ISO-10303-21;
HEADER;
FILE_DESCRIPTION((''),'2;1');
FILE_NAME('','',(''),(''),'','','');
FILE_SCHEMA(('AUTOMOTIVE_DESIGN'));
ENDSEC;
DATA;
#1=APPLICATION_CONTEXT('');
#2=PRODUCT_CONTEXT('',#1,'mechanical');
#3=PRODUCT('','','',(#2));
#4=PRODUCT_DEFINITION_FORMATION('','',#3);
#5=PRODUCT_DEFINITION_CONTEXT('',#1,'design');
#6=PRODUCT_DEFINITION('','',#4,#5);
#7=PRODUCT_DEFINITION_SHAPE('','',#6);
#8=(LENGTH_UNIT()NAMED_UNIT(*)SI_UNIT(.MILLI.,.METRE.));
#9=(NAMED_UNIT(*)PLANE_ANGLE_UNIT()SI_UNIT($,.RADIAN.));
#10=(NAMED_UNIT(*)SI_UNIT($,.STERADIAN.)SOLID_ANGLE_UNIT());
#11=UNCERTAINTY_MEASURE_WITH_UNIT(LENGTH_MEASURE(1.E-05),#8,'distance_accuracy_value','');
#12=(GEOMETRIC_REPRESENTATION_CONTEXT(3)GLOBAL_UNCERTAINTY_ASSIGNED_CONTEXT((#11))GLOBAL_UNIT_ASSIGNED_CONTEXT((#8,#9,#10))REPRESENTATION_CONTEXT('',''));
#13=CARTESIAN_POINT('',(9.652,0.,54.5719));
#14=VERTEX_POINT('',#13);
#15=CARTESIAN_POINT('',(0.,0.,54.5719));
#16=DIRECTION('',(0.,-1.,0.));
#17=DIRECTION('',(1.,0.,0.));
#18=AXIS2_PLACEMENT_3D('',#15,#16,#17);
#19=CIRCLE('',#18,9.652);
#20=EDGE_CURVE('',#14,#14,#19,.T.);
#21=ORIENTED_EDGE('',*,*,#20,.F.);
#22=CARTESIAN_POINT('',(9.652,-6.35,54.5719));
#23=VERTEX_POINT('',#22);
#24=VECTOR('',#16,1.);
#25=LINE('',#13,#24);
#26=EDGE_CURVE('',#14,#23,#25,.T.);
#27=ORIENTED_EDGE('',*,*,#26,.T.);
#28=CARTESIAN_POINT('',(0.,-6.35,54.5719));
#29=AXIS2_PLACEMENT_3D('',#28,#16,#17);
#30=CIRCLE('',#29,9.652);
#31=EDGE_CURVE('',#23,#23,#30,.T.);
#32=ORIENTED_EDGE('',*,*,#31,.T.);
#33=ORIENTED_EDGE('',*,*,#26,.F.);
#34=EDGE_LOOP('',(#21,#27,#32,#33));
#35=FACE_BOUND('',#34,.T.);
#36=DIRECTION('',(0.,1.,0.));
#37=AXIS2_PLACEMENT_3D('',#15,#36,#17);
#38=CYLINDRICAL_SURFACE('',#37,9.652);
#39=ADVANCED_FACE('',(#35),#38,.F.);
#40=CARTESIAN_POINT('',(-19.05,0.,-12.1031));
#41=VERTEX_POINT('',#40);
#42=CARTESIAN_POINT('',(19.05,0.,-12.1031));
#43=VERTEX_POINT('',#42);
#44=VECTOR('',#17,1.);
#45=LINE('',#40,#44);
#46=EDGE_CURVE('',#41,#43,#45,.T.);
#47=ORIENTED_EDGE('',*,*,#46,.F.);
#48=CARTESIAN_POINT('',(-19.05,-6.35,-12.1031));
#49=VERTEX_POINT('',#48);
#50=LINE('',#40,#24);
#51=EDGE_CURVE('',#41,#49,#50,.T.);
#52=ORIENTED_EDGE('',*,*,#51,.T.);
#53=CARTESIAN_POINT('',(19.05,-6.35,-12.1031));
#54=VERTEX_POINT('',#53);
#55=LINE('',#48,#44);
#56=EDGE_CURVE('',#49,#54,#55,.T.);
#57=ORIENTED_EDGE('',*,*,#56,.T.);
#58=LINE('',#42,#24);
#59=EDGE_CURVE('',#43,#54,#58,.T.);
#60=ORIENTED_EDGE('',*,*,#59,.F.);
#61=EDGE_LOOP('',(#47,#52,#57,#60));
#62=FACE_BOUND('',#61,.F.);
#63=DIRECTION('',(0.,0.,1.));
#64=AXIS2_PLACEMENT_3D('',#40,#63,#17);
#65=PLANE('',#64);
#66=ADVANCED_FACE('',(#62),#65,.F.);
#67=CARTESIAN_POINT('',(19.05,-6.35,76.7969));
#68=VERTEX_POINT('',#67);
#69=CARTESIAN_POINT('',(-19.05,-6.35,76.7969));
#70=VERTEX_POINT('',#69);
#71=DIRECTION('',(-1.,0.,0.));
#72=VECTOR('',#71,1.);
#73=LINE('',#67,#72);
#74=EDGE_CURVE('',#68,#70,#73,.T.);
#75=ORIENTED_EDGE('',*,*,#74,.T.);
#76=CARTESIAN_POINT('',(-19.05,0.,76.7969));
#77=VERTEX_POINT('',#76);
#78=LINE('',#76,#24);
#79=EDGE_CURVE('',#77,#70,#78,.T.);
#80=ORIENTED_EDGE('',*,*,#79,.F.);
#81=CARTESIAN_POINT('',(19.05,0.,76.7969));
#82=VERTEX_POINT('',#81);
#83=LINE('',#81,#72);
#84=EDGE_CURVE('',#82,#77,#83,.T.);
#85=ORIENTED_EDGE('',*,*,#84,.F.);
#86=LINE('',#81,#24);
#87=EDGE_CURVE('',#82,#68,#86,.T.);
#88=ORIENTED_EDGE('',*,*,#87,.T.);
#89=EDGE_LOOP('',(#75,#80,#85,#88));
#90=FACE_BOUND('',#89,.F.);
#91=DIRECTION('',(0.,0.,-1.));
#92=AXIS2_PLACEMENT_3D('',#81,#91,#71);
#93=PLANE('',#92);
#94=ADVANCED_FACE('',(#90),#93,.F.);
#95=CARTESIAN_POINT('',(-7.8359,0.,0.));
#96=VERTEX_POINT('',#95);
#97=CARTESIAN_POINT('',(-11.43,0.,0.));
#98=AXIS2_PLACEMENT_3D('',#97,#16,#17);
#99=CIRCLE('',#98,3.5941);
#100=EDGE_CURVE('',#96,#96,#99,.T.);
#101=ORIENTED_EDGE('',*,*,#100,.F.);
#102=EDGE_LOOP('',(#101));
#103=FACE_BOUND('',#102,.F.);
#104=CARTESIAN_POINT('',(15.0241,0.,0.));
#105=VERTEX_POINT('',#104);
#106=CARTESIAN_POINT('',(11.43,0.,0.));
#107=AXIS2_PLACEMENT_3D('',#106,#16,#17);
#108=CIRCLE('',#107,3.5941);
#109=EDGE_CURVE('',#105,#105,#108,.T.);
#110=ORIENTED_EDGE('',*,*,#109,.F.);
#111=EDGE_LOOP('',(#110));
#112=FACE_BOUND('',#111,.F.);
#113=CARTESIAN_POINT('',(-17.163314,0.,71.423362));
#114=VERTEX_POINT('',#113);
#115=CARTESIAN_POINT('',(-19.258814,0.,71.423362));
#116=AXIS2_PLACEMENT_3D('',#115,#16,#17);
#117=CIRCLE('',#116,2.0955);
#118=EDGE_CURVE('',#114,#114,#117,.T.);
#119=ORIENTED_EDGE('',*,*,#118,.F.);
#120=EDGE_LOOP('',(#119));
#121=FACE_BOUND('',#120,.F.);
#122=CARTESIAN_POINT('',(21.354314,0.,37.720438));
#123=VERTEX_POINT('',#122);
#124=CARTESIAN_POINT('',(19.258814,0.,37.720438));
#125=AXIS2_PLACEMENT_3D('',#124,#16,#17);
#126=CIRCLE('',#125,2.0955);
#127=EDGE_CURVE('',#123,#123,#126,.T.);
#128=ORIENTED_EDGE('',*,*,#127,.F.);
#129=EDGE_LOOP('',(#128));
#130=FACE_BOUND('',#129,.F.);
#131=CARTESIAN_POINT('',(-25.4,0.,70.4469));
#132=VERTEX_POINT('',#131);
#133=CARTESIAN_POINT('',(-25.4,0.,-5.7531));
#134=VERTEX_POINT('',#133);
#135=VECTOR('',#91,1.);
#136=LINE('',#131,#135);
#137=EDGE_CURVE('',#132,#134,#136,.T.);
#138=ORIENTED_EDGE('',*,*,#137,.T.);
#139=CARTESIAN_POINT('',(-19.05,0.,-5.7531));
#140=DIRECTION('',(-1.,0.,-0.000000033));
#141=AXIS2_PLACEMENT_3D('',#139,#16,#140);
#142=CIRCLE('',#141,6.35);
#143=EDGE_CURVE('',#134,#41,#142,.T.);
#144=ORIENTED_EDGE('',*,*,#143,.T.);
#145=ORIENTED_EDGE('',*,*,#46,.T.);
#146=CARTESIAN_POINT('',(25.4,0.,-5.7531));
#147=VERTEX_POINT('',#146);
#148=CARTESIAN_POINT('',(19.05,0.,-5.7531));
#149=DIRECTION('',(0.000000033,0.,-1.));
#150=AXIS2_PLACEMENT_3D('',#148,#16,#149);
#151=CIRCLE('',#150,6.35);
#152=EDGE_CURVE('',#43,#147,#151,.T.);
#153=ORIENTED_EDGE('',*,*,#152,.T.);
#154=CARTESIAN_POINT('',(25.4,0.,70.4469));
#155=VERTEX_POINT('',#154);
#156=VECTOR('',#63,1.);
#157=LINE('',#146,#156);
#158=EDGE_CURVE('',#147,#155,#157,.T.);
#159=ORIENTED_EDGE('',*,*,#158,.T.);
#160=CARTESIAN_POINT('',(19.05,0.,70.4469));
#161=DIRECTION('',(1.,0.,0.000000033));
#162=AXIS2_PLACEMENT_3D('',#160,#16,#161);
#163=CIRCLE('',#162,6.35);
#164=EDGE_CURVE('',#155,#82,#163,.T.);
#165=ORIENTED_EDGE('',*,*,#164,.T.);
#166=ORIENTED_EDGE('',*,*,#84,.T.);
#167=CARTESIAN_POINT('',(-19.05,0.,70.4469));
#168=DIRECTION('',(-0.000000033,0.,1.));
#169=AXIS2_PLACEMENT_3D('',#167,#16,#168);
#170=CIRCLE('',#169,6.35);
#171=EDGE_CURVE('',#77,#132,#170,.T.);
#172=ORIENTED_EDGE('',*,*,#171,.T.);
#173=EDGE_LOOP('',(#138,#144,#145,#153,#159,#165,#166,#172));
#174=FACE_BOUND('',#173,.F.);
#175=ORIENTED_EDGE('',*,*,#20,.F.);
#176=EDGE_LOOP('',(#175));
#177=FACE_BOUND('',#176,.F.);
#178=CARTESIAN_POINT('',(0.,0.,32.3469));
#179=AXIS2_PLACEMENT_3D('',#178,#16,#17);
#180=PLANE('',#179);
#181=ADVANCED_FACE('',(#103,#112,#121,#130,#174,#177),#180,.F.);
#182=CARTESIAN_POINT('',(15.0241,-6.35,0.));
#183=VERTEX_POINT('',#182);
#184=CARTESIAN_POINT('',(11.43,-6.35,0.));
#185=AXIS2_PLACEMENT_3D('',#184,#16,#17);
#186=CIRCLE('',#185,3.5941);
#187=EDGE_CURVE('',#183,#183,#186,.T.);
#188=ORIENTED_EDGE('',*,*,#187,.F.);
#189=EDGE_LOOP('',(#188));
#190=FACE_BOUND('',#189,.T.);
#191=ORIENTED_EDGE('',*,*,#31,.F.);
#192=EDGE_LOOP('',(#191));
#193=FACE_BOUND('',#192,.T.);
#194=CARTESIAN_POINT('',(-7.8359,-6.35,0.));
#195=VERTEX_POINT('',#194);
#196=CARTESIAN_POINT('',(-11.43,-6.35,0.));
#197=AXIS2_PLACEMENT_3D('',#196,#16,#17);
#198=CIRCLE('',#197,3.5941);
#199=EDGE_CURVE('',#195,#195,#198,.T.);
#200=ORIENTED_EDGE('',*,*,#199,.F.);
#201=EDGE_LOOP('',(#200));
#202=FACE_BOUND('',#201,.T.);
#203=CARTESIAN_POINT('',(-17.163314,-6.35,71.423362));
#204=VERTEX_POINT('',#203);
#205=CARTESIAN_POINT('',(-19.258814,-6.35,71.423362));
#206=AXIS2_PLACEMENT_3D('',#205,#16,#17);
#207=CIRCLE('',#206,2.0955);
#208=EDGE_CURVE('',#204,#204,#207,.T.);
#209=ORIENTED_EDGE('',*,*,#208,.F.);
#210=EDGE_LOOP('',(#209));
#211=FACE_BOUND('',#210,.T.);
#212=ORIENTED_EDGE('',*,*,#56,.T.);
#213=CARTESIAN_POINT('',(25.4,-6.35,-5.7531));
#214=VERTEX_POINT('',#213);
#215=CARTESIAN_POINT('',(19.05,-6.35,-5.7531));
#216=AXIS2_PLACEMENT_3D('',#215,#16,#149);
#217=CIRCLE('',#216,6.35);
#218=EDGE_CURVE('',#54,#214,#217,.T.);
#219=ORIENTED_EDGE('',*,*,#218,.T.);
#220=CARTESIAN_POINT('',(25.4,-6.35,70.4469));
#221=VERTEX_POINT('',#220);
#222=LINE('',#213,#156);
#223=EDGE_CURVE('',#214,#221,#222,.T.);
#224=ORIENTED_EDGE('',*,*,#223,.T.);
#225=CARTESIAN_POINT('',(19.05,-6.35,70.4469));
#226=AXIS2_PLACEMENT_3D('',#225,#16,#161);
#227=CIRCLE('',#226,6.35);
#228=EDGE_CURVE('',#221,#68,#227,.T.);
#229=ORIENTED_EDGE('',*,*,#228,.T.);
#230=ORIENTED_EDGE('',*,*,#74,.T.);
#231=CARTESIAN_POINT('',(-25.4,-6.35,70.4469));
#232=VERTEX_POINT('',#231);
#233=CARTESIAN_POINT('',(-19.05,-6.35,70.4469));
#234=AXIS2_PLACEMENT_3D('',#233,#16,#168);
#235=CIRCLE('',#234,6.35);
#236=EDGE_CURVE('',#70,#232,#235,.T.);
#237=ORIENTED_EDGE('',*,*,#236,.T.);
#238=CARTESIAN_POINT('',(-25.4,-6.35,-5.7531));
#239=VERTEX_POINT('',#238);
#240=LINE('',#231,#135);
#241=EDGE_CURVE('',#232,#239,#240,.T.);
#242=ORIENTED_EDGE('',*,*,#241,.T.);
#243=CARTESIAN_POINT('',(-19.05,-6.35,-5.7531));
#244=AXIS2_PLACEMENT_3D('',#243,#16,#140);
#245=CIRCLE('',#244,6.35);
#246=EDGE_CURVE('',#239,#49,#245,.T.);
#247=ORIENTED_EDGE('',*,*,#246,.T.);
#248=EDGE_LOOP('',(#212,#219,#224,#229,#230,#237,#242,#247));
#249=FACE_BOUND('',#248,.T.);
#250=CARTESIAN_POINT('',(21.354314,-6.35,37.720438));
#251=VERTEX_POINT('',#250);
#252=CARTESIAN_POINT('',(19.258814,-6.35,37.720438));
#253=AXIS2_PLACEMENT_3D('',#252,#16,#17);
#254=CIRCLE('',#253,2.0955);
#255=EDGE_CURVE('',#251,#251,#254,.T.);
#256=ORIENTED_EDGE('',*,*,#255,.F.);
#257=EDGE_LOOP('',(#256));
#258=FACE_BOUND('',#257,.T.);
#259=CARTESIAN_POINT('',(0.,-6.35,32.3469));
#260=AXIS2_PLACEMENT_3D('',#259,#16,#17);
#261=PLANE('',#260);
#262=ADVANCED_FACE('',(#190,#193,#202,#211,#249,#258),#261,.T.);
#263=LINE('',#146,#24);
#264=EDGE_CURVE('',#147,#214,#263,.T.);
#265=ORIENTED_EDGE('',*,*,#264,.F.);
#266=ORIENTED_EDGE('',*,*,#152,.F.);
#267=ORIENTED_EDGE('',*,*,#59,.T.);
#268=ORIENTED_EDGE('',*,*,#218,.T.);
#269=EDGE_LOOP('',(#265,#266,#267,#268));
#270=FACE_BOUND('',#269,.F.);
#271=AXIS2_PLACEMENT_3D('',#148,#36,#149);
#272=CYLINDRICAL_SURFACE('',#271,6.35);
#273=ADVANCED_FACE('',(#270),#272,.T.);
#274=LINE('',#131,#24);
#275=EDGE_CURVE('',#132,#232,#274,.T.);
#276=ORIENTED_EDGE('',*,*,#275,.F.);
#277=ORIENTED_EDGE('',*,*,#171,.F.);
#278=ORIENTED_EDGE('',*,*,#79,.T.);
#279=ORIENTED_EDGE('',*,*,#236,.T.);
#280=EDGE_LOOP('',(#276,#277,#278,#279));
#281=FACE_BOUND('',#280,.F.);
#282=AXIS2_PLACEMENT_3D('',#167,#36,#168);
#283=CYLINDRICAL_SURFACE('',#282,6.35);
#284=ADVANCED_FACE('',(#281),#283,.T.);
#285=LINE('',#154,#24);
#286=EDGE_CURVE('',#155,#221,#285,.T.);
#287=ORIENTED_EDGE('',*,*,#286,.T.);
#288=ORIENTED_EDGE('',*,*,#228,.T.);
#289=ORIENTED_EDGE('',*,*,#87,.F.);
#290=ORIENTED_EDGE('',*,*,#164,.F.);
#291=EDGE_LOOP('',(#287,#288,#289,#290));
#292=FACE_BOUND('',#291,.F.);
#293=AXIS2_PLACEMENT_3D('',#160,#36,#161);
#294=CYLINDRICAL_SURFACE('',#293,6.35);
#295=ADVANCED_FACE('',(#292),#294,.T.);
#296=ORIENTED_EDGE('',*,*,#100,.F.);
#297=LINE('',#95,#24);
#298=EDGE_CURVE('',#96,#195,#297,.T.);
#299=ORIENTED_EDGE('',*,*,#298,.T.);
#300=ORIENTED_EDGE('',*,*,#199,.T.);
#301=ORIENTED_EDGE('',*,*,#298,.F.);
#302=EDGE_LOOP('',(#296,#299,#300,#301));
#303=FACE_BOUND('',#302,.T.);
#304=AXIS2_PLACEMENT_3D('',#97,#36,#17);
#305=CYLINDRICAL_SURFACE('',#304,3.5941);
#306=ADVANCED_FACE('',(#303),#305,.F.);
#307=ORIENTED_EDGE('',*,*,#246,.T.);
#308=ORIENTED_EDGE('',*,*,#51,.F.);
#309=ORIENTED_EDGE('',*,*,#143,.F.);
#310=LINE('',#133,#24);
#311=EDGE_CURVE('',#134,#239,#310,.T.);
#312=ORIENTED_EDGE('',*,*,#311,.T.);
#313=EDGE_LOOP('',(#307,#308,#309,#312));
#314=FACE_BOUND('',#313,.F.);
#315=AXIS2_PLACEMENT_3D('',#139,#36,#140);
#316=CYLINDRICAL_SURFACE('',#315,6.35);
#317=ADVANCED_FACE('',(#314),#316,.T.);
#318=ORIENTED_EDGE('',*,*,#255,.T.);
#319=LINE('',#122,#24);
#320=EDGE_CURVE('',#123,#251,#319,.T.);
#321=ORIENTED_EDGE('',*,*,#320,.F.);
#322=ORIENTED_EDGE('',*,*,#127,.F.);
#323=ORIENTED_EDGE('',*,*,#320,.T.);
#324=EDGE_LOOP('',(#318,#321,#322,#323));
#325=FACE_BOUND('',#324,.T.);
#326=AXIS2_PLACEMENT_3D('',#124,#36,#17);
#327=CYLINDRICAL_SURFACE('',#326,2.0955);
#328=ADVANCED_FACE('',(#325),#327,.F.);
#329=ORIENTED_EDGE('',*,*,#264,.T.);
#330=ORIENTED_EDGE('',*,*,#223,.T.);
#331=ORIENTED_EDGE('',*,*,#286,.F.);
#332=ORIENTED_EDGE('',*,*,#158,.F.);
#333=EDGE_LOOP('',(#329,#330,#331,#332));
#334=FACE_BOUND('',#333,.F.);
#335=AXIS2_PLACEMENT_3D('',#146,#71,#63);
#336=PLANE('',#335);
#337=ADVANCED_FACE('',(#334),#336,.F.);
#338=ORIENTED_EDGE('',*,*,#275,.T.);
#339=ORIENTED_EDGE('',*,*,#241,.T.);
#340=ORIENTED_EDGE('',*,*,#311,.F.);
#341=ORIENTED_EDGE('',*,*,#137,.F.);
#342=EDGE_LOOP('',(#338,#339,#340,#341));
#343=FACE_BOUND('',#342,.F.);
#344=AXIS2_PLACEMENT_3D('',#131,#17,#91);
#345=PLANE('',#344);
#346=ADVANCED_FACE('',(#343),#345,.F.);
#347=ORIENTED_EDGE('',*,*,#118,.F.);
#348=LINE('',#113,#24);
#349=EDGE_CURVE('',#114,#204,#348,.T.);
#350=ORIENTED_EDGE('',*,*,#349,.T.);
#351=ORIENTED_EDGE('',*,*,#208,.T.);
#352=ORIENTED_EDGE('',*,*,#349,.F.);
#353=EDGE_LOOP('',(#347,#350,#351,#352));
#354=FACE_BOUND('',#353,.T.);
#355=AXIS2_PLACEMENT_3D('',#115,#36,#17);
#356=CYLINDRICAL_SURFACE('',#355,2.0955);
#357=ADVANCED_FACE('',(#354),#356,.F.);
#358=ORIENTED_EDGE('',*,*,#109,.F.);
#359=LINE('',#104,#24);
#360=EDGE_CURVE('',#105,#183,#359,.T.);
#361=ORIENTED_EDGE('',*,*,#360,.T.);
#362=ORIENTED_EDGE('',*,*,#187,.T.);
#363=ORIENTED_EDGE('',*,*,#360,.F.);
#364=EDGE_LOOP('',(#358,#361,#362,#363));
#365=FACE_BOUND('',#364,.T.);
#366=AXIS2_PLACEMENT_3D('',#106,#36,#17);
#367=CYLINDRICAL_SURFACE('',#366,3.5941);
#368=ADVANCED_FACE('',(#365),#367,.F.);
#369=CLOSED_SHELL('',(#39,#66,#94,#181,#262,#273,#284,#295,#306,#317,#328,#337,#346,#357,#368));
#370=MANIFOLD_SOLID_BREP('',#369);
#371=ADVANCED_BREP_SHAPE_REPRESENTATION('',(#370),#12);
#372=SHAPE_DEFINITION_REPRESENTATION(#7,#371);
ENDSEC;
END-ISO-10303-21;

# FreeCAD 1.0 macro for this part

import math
import FreeCAD as App
import Part
import Sketcher
Q = App.Units.Quantity

doc = App.newDocument("Part")
body = doc.addObject("PartDesign::Body", "Body")

# Sketch on XZ plane
sketch1 = doc.addObject("Sketcher::SketchObject", "Sketch")
body.addObject(sketch1)
sketch1.AttachmentSupport = (doc.XZ_Plane, [""])
sketch1.MapMode = "FlatFace"
sketch1.addGeometry([
    Part.LineSegment(App.Vector(-19.1, -12.1, 0), App.Vector(19.1, -12.1, 0)),  # 0
    Part.ArcOfCircle(Part.Circle(App.Vector(19, -5.8, 0), App.Vector(0, 0, 1), 6.4), math.radians(-90), math.radians(0)),  # 1
    Part.LineSegment(App.Vector(25.4, -5.8, 0), App.Vector(25.4, 70.4, 0)),  # 2
    Part.ArcOfCircle(Part.Circle(App.Vector(19, 70.4, 0), App.Vector(0, 0, 1), 6.4), math.radians(0), math.radians(90)),  # 3
    Part.LineSegment(App.Vector(19.1, 76.8, 0), App.Vector(-19.1, 76.8, 0)),  # 4
    Part.ArcOfCircle(Part.Circle(App.Vector(-19, 70.4, 0), App.Vector(0, 0, 1), 6.4), math.radians(90), math.radians(180)),  # 5
    Part.LineSegment(App.Vector(-25.4, 70.4, 0), App.Vector(-25.4, -5.8, 0)),  # 6
    Part.ArcOfCircle(Part.Circle(App.Vector(-19, -5.8, 0), App.Vector(0, 0, 1), 6.4), math.radians(-180), math.radians(-90)),  # 7
    Part.Circle(App.Vector(-11.4, 0, 0), App.Vector(0, 0, 1), 3.6),  # 8
    Part.Circle(App.Vector(11.4, 0, 0), App.Vector(0, 0, 1), 3.6),  # 9
    Part.Circle(App.Vector(-19.3, 71.4, 0), App.Vector(0, 0, 1), 2.1),  # 10
    Part.Circle(App.Vector(19.3, 37.7, 0), App.Vector(0, 0, 1), 2.1),  # 11
    Part.Circle(App.Vector(0, 54.6, 0), App.Vector(0, 0, 1), 9.7),  # 12
], False)
sketch1.addConstraint([
    Sketcher.Constraint("Tangent", 0, 2, 1, 1),
    Sketcher.Constraint("Tangent", 1, 2, 2, 1),
    Sketcher.Constraint("Tangent", 2, 2, 3, 1),
    Sketcher.Constraint("Tangent", 3, 2, 4, 1),
    Sketcher.Constraint("Tangent", 4, 2, 5, 1),
    Sketcher.Constraint("Tangent", 5, 2, 6, 1),
    Sketcher.Constraint("Tangent", 6, 2, 7, 1),
    Sketcher.Constraint("Tangent", 7, 2, 0, 1),
    Sketcher.Constraint("Horizontal", 0),
    Sketcher.Constraint("Vertical", 2),
    Sketcher.Constraint("Horizontal", 4),
    Sketcher.Constraint("Vertical", 6),
    Sketcher.Constraint("Equal", 1, 3),
    Sketcher.Constraint("Equal", 3, 5),
    Sketcher.Constraint("Equal", 5, 7),
    Sketcher.Constraint("Equal", 8, 9),
    Sketcher.Constraint("Equal", 10, 11),
    Sketcher.Constraint("Symmetric", 8, 3, 9, 3, -1, 1),
    Sketcher.Constraint("PointOnObject", 8, 3, -1),
    Sketcher.Constraint("PointOnObject", 12, 3, -2),
    Sketcher.Constraint("Diameter", 12, Q("0.76 in")),
    Sketcher.Constraint("DistanceY", 2, 1, 2, 2, Q("3 in")),
    Sketcher.Constraint("Radius", 1, Q("0.25 in")),
    Sketcher.Constraint("Diameter", 8, Q("0.283 in")),
    Sketcher.Constraint("Diameter", 10, Q("0.165 in")),
    Sketcher.Constraint("DistanceX", 0, 1, 0, 2, Q("1.5 in")),
    Sketcher.Constraint("DistanceX", -1, 1, 1, 2, Q("1 in")),
    Sketcher.Constraint("DistanceX", 7, 3, 8, 3, Q("0.3 in")),
    Sketcher.Constraint("DistanceY", 12, 3, 3, 3, Q("0.625 in")),
    Sketcher.Constraint("DistanceY", 1, 3, -1, 1, Q("0.2265 in")),
    Sketcher.Constraint("DistanceY", -1, 1, 10, 3, Q("71.423362 mm")),
    Sketcher.Constraint("DistanceY", 11, 3, 3, 3, Q("32.726462 mm")),
    Sketcher.Constraint("DistanceX", 10, 3, -1, 1, Q("19.258814 mm")),
    Sketcher.Constraint("DistanceX", -1, 1, 11, 3, Q("19.258814 mm")),
])
pad1 = doc.addObject("PartDesign::Pad", "Pad")
body.addObject(pad1)
pad1.Profile = sketch1
pad1.Length = Q("0.25 in")

doc.recompute()
